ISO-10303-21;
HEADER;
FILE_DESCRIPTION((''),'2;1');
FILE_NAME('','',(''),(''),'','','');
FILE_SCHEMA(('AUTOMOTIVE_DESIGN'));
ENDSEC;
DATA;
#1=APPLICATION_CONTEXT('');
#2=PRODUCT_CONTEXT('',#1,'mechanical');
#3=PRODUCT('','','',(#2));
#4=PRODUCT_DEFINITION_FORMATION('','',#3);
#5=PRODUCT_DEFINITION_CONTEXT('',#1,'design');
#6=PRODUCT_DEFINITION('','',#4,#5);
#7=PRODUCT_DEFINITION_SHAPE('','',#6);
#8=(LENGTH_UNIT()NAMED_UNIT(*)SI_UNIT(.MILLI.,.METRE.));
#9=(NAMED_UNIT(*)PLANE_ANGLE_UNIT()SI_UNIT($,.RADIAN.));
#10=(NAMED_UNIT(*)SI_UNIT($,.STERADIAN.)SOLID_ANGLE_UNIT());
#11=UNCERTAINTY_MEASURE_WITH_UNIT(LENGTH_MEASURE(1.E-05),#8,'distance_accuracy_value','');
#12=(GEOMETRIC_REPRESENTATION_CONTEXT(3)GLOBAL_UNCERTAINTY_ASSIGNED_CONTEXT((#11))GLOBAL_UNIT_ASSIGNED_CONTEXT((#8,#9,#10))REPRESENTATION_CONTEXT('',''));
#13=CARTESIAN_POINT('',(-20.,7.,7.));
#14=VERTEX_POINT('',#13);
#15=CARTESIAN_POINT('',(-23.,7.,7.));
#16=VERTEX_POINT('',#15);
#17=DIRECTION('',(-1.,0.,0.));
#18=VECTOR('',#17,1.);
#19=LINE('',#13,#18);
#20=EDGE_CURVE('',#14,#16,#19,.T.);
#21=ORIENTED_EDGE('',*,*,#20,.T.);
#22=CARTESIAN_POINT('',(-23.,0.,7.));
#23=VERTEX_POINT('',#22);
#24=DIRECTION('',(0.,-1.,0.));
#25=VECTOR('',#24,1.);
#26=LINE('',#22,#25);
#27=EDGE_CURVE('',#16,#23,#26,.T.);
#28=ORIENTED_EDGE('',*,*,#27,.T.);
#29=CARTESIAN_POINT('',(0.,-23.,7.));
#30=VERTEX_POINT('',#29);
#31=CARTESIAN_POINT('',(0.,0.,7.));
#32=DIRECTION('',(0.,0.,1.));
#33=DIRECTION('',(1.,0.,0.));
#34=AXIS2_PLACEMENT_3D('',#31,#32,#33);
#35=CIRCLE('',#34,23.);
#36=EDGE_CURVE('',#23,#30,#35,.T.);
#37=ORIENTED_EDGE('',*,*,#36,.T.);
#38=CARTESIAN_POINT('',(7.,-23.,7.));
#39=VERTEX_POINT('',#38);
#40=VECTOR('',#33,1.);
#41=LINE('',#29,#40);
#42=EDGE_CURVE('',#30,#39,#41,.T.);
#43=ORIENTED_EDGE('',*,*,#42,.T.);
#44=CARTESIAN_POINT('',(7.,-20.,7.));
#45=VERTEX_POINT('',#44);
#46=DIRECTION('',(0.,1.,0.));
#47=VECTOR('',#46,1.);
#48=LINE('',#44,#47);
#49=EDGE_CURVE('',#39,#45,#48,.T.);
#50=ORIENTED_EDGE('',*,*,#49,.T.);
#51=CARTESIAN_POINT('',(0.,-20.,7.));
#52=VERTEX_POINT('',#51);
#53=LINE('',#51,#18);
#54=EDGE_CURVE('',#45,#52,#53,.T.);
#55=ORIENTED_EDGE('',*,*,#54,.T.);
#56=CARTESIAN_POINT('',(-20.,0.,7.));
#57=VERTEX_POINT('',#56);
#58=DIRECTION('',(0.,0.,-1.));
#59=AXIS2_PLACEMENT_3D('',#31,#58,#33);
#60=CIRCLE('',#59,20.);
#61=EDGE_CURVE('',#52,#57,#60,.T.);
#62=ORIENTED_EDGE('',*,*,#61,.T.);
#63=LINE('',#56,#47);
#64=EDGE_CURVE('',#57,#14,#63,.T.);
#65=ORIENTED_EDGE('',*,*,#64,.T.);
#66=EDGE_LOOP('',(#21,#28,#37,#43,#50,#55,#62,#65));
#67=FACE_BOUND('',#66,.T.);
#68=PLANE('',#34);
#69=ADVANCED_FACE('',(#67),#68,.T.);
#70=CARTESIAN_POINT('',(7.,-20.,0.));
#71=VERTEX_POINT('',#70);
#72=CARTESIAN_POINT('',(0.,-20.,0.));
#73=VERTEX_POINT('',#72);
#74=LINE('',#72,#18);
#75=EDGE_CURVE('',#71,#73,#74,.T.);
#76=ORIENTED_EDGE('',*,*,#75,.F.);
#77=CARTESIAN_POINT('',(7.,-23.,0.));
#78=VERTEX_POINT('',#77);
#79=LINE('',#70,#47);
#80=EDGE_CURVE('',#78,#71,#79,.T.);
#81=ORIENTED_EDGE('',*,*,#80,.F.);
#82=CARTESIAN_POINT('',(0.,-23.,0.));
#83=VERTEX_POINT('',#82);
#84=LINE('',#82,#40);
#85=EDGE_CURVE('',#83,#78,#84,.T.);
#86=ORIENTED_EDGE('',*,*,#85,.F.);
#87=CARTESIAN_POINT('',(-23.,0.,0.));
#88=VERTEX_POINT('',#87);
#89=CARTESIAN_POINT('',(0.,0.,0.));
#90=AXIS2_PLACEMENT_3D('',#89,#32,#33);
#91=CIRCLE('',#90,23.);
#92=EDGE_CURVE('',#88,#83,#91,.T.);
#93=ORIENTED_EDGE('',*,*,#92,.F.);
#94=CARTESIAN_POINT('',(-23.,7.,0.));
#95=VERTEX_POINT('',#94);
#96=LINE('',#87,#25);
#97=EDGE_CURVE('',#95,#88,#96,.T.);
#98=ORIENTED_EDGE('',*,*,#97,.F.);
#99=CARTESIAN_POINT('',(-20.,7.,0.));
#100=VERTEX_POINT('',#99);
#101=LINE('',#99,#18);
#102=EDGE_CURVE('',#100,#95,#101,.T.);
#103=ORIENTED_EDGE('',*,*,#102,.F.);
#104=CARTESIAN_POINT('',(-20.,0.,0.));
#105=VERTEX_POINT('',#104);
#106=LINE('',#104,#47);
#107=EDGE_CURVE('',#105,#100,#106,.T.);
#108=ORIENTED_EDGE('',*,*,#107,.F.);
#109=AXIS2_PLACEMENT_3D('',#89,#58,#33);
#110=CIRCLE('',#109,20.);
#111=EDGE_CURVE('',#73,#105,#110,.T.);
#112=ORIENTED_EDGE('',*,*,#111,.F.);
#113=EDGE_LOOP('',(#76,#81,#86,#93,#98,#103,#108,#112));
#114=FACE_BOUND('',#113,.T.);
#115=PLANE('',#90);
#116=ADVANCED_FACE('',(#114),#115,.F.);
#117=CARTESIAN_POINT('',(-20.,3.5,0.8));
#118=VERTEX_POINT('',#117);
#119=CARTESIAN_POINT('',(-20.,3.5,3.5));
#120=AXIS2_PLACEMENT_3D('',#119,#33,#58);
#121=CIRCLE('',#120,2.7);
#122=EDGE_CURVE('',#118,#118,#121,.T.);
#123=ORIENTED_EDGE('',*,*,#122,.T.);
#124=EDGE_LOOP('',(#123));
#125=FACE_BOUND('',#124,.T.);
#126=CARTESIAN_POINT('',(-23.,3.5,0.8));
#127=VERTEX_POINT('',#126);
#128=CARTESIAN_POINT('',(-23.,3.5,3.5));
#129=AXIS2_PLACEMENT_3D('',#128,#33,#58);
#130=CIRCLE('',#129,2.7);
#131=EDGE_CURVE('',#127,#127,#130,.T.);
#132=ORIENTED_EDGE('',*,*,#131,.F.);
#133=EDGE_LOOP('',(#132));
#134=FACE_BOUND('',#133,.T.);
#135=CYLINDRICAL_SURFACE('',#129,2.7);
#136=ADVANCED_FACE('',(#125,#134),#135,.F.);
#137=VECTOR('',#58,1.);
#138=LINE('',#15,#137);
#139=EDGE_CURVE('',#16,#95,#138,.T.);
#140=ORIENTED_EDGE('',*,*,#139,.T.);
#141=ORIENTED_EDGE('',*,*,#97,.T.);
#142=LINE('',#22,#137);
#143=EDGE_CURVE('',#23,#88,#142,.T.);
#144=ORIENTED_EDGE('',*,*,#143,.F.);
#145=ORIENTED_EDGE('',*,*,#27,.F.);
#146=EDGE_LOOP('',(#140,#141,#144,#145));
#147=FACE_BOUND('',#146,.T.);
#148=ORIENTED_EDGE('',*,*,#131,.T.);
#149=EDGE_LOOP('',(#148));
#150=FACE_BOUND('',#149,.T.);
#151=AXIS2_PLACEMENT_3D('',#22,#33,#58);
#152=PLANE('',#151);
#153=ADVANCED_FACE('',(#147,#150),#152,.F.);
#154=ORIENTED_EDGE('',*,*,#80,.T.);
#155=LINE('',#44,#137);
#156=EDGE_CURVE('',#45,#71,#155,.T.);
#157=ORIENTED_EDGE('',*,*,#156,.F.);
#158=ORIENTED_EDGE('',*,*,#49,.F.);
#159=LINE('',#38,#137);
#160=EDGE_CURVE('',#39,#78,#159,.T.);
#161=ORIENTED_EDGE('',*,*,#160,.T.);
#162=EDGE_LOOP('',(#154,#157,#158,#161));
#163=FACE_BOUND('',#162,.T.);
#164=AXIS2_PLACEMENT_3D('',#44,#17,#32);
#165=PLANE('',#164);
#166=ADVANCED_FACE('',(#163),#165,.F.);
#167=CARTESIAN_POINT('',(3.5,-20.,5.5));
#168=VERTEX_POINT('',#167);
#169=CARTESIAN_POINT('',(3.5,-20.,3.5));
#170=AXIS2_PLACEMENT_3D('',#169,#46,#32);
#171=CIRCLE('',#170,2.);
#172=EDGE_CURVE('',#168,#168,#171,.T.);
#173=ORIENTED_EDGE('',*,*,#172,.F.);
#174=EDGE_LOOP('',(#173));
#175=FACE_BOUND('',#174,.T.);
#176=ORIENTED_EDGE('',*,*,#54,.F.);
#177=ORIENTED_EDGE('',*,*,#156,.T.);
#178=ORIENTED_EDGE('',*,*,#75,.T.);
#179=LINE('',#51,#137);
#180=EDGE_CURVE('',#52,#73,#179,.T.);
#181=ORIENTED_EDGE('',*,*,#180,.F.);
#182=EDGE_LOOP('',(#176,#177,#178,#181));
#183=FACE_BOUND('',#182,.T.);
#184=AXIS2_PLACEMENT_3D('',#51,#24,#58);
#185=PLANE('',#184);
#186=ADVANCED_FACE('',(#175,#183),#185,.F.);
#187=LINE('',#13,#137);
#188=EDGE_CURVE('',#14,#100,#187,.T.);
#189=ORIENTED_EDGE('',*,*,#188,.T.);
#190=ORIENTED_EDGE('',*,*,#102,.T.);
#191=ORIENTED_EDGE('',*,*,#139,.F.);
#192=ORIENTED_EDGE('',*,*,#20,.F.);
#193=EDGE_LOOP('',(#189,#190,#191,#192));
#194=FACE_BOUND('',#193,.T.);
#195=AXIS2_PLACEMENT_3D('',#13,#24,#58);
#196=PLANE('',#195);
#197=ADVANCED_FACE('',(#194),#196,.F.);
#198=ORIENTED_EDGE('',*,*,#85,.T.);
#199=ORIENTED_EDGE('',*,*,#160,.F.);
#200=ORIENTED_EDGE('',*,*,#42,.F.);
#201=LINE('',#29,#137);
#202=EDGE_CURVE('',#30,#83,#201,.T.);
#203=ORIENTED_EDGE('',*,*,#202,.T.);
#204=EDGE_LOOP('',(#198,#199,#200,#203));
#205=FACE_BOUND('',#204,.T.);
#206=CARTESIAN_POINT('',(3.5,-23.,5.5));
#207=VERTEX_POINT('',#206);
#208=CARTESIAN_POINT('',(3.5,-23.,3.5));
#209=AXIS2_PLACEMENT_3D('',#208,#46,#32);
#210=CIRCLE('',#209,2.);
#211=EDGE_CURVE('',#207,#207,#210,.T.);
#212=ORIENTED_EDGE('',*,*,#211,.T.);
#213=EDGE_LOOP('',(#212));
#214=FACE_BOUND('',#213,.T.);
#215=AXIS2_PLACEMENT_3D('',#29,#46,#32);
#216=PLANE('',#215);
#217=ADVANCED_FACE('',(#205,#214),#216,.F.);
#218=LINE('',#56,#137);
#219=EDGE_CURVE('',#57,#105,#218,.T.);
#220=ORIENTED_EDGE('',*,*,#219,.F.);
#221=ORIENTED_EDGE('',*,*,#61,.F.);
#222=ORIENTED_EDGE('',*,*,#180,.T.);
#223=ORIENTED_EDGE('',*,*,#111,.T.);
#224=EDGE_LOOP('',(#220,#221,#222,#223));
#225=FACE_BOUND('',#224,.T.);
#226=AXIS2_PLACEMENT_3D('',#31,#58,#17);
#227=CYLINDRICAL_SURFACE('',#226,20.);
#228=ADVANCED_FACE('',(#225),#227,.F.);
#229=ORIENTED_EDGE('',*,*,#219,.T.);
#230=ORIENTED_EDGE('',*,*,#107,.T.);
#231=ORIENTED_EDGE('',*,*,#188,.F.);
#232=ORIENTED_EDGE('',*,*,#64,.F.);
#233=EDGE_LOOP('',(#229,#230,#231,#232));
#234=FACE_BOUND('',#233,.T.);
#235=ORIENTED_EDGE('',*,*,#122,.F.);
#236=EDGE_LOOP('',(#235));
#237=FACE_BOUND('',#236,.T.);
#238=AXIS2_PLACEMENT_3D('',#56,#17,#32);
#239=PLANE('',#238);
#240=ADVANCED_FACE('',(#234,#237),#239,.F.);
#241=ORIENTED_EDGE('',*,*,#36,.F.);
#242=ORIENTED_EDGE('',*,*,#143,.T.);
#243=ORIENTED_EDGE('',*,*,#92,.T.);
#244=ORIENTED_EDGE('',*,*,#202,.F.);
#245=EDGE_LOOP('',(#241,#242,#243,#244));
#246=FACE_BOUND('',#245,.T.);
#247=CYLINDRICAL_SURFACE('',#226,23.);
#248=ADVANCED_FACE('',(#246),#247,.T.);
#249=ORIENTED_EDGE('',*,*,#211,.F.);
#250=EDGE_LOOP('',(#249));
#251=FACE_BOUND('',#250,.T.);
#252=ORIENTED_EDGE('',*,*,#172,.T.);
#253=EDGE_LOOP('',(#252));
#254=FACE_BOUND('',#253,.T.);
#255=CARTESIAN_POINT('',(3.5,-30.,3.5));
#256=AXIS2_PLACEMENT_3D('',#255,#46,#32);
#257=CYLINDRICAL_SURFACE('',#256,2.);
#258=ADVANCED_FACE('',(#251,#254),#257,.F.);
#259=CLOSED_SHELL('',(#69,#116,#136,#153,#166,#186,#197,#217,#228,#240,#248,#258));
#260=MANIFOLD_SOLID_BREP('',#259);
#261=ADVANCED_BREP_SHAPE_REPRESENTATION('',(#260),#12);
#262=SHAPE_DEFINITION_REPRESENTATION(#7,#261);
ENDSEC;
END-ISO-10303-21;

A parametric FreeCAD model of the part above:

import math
import FreeCAD as App
import Part
import Sketcher

V = App.Vector
Q = App.Units.Quantity

doc = App.newDocument("Part")
params = doc.addObject("Spreadsheet::Sheet", "Params")
for row, (alias, value) in enumerate([
    ("sketch1_radius", "23 mm"),
    ("sketch1_radius2", "20 mm"),
    ("sketch1_width", "7 mm"),
    ("pad1_length", "7 mm"),
    ("sketch2_diameter", "5.4 mm"),
    ("sketch3_diameter", "4 mm"),
    ("pocket2_length", "10 mm"),
], start=1):
    params.set(f"A{row}", alias)
    params.set(f"B{row}", "=" + value)
    params.setAlias(f"B{row}", alias)

body = doc.addObject("PartDesign::Body", "Body")

# Sketch on XY plane
sketch1 = body.newObject("Sketcher::SketchObject", "Sketch")
sketch1.AttachmentSupport = (doc.getObject("XY_Plane"), [""])
sketch1.MapMode = "FlatFace"
sketch1.addGeometry([
    Part.LineSegment(V(-20, 0, 0), V(-20, 7, 0)),  # 0
    Part.LineSegment(V(-20, 7, 0), V(-23, 7, 0)),  # 1
    Part.LineSegment(V(-23, 7, 0), V(-23, 0, 0)),  # 2
    Part.ArcOfCircle(Part.Circle(V(0, 0, 0), V(0, 0, 1), 23), math.radians(-180), math.radians(-90)),  # 3
    Part.LineSegment(V(0, -23, 0), V(7, -23, 0)),  # 4
    Part.LineSegment(V(7, -23, 0), V(7, -20, 0)),  # 5
    Part.LineSegment(V(7, -20, 0), V(0, -20, 0)),  # 6
    Part.ArcOfCircle(Part.Circle(V(0, 0, 0), V(0, 0, 1), 20), math.radians(180), math.radians(270)),  # 7
], False)
sketch1.addConstraint([
    Sketcher.Constraint("Coincident", 0, 2, 1, 1),
    Sketcher.Constraint("Coincident", 1, 2, 2, 1),
    Sketcher.Constraint("Tangent", 2, 2, 3, 1),
    Sketcher.Constraint("Tangent", 3, 2, 4, 1),
    Sketcher.Constraint("Coincident", 4, 2, 5, 1),
    Sketcher.Constraint("Coincident", 5, 2, 6, 1),
    Sketcher.Constraint("Tangent", 6, 2, 7, 2),
    Sketcher.Constraint("Tangent", 7, 1, 0, 1),
    Sketcher.Constraint("Vertical", 0),
    Sketcher.Constraint("Horizontal", 1),
    Sketcher.Constraint("Vertical", 2),
    Sketcher.Constraint("Horizontal", 4),
    Sketcher.Constraint("Vertical", 5),
    Sketcher.Constraint("Horizontal", 6),
    Sketcher.Constraint("Coincident", 3, 3, -1, 1),
    Sketcher.Constraint("Coincident", 7, 3, -1, 1),
    Sketcher.Constraint("Equal", 6, 0),
    Sketcher.Constraint("Radius", 3, Q("23 mm")),
    Sketcher.Constraint("Radius", 7, Q("20 mm")),
    Sketcher.Constraint("DistanceX", 4, 1, 4, 2, Q("7 mm")),
])
sketch1.setExpression("Constraints[17]", "Params.sketch1_radius")
sketch1.setExpression("Constraints[18]", "Params.sketch1_radius2")
sketch1.setExpression("Constraints[19]", "Params.sketch1_width")
pad1 = body.newObject("PartDesign::Pad", "Pad")
pad1.Profile = sketch1
pad1.setExpression("Length", "Params.pad1_length")

# Sketch on YZ plane
sketch2 = body.newObject("Sketcher::SketchObject", "Sketch001")
sketch2.AttachmentSupport = (doc.getObject("YZ_Plane"), [""])
sketch2.MapMode = "FlatFace"
sketch2.AttachmentOffset = App.Placement(V(0, 0, -20), App.Rotation())
sketch2.addGeometry(Part.Circle(V(3.5, 3.5, 0), V(0, 0, 1), 2.7), False)
sketch2.addConstraint([
    Sketcher.Constraint("Diameter", 0, Q("5.4 mm")),
    Sketcher.Constraint("DistanceX", -1, 1, 0, 3, Q("3.5 mm")),
    Sketcher.Constraint("DistanceY", -1, 1, 0, 3, Q("3.5 mm")),
])
sketch2.setExpression("Constraints[0]", "Params.sketch2_diameter")
pocket1 = body.newObject("PartDesign::Pocket", "Pocket")
pocket1.Profile = sketch2
pocket1.Type = "ThroughAll"

# Sketch on XZ plane
sketch3 = body.newObject("Sketcher::SketchObject", "Sketch002")
sketch3.AttachmentSupport = (doc.getObject("XZ_Plane"), [""])
sketch3.MapMode = "FlatFace"
sketch3.AttachmentOffset = App.Placement(V(0, 0, 20), App.Rotation())
sketch3.addGeometry(Part.Circle(V(3.5, 3.5, 0), V(0, 0, 1), 2), False)
sketch3.addConstraint([
    Sketcher.Constraint("Diameter", 0, Q("4 mm")),
    Sketcher.Constraint("DistanceX", -1, 1, 0, 3, Q("3.5 mm")),
    Sketcher.Constraint("DistanceY", -1, 1, 0, 3, Q("3.5 mm")),
])
sketch3.setExpression("Constraints[0]", "Params.sketch3_diameter")
pocket2 = body.newObject("PartDesign::Pocket", "Pocket001")
pocket2.Profile = sketch3
pocket2.setExpression("Length", "Params.pocket2_length")
pocket2.Reversed = True

doc.recompute()
